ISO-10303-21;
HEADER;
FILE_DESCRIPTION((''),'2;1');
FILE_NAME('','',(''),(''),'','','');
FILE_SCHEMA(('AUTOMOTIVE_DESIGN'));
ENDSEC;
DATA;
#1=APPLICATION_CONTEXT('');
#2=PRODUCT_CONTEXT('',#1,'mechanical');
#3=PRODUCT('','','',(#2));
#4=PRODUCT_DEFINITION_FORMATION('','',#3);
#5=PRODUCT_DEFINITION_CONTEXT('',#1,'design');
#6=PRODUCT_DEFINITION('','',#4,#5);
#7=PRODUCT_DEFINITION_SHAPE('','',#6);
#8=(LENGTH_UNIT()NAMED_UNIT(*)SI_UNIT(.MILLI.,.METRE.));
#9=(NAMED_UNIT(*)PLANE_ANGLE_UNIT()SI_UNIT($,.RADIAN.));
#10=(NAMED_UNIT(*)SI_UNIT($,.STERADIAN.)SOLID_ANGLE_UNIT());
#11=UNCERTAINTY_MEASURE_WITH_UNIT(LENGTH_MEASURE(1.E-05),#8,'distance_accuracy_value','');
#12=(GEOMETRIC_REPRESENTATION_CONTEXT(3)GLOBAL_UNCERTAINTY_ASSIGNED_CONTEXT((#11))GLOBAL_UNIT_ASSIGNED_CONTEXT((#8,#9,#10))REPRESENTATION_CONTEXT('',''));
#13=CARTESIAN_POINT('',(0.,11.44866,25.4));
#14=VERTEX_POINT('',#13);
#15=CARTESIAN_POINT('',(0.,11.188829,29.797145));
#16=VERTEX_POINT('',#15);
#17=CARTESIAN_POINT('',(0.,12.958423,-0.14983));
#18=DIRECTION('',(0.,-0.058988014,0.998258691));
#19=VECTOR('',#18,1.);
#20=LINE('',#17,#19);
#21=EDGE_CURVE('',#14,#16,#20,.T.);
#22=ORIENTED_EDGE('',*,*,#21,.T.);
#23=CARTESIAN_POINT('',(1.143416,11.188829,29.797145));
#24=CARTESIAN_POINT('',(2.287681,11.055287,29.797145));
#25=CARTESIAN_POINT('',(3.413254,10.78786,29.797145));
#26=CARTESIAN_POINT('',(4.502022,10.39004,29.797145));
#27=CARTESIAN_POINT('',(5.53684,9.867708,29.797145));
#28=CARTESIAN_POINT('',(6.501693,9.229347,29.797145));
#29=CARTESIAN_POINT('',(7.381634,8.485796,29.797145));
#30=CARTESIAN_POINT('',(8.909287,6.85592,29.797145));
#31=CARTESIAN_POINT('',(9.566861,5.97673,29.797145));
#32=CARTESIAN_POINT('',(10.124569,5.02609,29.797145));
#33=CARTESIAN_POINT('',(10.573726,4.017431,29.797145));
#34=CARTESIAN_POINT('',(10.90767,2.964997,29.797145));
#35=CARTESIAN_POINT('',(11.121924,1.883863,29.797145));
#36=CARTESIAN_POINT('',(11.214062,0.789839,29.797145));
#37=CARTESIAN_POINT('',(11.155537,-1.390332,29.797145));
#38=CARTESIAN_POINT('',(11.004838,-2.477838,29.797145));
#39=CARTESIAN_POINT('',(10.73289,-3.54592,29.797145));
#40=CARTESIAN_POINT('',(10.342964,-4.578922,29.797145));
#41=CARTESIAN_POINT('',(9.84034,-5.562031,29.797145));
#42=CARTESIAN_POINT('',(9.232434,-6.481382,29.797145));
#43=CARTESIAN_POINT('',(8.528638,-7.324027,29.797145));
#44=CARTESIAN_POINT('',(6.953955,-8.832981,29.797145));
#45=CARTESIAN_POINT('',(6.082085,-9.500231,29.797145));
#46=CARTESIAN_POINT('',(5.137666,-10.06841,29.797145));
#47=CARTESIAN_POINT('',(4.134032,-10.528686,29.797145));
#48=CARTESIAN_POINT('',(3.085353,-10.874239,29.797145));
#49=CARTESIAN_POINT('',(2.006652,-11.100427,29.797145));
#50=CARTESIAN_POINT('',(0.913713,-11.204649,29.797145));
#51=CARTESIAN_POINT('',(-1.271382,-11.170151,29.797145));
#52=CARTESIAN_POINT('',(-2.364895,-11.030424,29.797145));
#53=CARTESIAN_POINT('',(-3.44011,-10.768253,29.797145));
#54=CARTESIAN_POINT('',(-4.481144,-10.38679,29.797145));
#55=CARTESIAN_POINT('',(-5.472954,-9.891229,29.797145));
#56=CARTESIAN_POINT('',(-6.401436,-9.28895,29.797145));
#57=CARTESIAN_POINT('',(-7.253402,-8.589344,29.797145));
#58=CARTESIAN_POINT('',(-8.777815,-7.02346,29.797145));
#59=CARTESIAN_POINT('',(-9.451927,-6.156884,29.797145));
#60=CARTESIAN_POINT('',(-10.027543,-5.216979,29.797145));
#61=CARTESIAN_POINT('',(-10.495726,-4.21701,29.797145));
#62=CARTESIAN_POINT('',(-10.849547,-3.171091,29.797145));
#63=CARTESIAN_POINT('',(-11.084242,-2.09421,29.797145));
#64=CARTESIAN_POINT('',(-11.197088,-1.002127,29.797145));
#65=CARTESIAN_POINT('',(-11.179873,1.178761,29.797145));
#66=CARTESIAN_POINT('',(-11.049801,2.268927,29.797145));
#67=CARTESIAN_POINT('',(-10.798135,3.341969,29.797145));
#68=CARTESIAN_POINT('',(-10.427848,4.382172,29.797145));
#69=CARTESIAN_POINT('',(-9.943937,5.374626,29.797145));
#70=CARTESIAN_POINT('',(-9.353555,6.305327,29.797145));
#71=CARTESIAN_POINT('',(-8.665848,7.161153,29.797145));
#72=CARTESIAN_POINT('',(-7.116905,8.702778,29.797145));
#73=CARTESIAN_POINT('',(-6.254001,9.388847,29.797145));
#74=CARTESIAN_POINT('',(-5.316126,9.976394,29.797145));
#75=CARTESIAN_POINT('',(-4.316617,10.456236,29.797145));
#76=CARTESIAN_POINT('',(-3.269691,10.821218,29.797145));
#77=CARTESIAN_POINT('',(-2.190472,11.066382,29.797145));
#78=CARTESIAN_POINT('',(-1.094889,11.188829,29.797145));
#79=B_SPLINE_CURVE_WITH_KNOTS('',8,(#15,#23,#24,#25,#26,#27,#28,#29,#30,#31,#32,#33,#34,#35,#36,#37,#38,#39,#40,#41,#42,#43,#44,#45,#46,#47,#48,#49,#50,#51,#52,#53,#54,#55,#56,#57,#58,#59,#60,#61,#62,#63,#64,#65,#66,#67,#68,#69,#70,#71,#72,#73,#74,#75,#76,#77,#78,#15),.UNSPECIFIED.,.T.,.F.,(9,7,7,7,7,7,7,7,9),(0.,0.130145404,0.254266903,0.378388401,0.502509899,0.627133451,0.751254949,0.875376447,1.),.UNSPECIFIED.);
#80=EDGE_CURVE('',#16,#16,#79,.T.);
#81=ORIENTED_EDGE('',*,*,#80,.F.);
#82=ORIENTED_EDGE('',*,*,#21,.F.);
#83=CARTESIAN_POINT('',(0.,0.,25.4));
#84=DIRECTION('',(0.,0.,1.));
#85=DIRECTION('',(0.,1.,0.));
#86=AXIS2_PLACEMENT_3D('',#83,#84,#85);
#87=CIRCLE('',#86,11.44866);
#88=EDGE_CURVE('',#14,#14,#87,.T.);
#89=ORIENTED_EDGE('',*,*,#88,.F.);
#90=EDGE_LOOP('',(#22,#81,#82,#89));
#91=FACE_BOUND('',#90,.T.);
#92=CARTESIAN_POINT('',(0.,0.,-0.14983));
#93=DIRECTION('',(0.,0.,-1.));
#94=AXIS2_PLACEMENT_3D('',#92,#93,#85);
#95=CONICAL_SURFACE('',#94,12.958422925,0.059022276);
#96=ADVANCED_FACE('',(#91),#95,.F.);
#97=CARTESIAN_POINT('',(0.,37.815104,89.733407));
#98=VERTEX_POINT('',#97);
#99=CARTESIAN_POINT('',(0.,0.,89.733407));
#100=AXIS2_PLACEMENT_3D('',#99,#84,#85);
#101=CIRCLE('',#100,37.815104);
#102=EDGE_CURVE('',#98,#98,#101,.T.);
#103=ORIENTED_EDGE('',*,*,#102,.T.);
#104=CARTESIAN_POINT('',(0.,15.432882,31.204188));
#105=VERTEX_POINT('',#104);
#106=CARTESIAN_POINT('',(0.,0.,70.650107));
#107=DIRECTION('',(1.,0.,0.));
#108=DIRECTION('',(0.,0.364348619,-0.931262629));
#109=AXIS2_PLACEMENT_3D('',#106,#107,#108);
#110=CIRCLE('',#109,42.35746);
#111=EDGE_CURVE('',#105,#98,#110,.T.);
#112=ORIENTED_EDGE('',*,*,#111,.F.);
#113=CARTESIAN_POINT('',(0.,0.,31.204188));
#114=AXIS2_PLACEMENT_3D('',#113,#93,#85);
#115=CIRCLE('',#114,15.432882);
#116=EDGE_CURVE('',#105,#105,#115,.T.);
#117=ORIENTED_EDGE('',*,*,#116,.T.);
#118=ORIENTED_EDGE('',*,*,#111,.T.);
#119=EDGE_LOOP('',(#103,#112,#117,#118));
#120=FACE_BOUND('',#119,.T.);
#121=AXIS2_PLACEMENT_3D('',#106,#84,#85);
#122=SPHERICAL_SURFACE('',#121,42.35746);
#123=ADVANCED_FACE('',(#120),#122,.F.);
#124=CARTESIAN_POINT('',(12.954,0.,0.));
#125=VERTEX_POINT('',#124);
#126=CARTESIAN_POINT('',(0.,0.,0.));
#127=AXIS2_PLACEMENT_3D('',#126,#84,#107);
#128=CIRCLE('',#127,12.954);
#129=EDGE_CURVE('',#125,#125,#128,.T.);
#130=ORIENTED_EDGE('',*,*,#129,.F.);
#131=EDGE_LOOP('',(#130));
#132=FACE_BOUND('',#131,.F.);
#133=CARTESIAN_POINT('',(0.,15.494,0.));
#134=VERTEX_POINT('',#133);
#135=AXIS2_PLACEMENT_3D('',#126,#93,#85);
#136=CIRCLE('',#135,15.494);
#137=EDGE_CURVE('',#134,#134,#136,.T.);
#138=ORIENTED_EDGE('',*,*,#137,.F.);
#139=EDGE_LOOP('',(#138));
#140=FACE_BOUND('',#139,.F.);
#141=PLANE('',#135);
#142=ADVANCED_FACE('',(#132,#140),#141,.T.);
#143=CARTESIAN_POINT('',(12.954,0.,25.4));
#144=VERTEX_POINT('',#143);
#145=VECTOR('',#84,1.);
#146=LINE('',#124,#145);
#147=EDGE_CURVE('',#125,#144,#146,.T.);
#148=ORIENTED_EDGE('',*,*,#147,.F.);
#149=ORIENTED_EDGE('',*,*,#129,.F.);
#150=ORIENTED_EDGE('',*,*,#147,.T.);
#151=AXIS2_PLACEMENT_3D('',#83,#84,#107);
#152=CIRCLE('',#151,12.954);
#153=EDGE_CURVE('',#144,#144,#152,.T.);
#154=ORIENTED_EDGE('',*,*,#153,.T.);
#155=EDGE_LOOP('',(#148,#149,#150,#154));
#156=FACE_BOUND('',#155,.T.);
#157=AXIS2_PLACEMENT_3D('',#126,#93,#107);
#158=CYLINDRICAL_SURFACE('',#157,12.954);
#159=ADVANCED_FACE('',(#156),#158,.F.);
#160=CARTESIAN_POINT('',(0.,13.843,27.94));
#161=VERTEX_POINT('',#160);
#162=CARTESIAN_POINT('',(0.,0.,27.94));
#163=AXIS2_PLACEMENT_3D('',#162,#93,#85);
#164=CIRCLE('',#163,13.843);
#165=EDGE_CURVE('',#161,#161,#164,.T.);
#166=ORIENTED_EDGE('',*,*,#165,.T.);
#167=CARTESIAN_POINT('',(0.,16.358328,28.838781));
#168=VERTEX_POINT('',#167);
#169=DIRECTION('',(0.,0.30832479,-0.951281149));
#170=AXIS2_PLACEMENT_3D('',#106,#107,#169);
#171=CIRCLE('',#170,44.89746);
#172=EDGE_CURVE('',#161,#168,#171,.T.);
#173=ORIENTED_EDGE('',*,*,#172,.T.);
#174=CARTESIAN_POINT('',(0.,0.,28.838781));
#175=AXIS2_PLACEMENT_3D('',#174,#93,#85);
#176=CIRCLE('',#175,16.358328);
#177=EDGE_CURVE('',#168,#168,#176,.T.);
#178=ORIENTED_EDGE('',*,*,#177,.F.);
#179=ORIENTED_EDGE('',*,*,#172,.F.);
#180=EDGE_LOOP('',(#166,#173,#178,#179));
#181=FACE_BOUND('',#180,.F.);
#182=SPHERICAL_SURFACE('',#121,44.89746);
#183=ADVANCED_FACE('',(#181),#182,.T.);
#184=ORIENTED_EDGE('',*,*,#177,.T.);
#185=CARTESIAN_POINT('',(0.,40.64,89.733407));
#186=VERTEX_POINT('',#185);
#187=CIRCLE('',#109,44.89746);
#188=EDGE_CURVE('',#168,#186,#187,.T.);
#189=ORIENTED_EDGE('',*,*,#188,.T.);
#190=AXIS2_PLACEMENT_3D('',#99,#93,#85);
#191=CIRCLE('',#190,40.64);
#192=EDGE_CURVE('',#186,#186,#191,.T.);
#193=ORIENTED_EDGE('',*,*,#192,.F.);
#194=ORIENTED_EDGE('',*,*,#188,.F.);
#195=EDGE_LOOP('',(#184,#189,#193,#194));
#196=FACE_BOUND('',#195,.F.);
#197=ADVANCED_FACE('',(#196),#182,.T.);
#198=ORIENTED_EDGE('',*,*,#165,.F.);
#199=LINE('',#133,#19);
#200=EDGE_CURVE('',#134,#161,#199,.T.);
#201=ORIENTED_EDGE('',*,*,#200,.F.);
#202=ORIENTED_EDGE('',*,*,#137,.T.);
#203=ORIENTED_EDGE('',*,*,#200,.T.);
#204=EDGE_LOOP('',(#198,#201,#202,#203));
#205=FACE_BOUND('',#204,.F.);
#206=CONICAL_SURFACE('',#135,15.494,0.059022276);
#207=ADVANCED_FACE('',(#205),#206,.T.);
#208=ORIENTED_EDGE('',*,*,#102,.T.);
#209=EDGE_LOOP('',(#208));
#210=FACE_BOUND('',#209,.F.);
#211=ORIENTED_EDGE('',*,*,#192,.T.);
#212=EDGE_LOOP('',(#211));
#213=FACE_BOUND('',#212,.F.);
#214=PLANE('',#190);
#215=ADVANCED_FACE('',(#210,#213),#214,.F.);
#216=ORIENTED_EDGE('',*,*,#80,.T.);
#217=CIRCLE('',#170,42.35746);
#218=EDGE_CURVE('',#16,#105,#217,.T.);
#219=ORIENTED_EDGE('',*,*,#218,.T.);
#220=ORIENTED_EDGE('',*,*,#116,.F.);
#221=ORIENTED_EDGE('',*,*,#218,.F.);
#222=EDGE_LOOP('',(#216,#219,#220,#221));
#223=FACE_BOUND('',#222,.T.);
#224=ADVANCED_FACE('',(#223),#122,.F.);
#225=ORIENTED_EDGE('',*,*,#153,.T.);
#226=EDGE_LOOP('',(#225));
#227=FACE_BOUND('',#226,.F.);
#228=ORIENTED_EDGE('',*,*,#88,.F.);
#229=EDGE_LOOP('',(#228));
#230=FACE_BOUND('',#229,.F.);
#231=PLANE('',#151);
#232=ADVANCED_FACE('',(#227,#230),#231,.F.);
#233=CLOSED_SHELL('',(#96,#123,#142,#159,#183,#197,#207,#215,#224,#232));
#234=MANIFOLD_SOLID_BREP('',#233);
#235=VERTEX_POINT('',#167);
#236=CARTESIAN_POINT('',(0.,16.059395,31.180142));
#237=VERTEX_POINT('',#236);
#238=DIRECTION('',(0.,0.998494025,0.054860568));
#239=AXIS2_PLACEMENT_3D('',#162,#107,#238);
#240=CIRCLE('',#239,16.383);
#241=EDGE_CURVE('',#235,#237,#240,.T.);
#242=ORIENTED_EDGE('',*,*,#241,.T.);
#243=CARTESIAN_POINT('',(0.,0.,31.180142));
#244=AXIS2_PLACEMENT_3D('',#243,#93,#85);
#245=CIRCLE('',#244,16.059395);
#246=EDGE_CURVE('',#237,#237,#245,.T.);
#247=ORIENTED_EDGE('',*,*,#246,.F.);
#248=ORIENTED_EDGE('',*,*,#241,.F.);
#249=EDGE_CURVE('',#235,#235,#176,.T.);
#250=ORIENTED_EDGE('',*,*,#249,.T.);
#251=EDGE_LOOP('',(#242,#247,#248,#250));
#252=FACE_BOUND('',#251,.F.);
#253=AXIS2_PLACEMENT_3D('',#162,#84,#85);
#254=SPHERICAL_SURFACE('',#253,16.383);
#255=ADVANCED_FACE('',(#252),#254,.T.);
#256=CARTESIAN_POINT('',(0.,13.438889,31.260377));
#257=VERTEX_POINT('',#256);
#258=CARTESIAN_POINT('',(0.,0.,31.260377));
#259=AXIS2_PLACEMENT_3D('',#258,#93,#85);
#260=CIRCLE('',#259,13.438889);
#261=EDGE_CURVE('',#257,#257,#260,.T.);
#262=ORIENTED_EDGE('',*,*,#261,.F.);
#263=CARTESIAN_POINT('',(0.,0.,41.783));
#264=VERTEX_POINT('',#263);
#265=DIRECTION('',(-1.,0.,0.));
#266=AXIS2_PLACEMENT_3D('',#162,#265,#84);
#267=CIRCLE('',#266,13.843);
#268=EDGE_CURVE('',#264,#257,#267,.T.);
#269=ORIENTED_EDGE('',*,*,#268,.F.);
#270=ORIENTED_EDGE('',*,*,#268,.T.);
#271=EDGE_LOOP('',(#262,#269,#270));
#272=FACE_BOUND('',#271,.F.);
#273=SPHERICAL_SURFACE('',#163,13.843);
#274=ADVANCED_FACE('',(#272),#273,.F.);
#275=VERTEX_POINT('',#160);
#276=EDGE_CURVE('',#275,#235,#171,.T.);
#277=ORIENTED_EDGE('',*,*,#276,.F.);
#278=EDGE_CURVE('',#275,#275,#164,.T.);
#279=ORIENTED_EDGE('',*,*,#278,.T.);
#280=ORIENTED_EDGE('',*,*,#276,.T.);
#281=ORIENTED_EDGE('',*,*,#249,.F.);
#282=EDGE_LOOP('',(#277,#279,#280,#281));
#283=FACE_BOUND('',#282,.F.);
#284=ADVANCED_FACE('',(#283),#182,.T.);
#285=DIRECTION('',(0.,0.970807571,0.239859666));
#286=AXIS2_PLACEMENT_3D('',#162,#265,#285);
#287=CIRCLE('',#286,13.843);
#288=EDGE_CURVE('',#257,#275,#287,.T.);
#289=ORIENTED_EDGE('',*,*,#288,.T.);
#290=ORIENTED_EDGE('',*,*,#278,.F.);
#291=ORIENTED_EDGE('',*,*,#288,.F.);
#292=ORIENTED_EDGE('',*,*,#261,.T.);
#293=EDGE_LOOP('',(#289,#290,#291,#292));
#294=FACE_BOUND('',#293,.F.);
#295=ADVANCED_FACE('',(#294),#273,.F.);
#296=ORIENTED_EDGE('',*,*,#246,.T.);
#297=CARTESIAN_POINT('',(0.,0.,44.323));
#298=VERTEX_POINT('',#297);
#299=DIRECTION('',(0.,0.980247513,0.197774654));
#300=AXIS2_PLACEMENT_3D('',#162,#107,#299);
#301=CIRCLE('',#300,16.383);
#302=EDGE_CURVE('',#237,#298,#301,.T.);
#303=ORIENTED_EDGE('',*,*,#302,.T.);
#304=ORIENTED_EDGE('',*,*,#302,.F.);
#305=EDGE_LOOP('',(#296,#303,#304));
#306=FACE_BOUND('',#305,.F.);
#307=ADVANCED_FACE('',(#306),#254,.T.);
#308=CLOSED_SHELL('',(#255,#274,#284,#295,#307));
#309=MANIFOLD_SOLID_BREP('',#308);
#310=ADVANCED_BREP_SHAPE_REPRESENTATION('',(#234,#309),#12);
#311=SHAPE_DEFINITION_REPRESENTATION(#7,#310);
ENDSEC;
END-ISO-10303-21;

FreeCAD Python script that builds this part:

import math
import FreeCAD as App
import Part
import Sketcher

V = App.Vector
Q = App.Units.Quantity


def faces_at(feature, points):
    """Names of the faces that lie closest to the given points."""
    faces = feature.Shape.Faces
    near = lambda p: min(range(len(faces)), key=lambda i: faces[i].distToShape(Part.Vertex(*p))[0])
    return sorted({f"Face{near(p) + 1}" for p in points})

doc = App.newDocument("Part")
params = doc.addObject("Spreadsheet::Sheet", "Params")
for row, (alias, value) in enumerate([
    ("sketch1_width", "1.6 in"),
    ("sketch1_width2", "0.61 in"),
    ("revolution_angle", "360 deg"),
    ("thickness_wall", "0.1 in"),
    ("sketch2_diameter", "1.02 in"),
    ("pocket1_length", "1 in"),
    ("sketch3_height", "0.1 in"),
    ("sketch3_radius", "0.545 in"),
    ("revolution2_angle", "360 deg"),
], start=1):
    params.set(f"A{row}", alias)
    params.set(f"B{row}", "=" + value)
    params.setAlias(f"B{row}", alias)

body = doc.addObject("PartDesign::Body", "Body")

# Sketch on YZ plane
sketch1 = body.newObject("Sketcher::SketchObject", "Sketch")
sketch1.AttachmentSupport = (doc.getObject("YZ_Plane"), [""])
sketch1.MapMode = "FlatFace"
sketch1.addGeometry([
    Part.LineSegment(V(0, 0, 0), V(15.494, 0, 0)),  # 0
    Part.LineSegment(V(15.494, 0, 0), V(13.843, 27.94, 0)),  # 1
    Part.ArcOfCircle(Part.Circle(V(0, 70.650107, 0), V(0, 0, 1), 44.89746), math.radians(-72.041696), math.radians(-68.632499)),  # 2
    Part.ArcOfCircle(Part.Circle(V(0, 70.650107, 0), V(0, 0, 1), 44.89746), math.radians(-68.632499), math.radians(25.153313)),  # 3
    Part.LineSegment(V(40.64, 89.733407, 0), V(0, 89.733407, 0)),  # 4
    Part.LineSegment(V(0, 89.733407, 0), V(0, 0, 0)),  # 5
], False)
sketch1.addConstraint([
    Sketcher.Constraint("Coincident", 0, 2, 1, 1),
    Sketcher.Constraint("Coincident", 1, 2, 2, 1),
    Sketcher.Constraint("Tangent", 2, 2, 3, 1),
    Sketcher.Constraint("Coincident", 3, 2, 4, 1),
    Sketcher.Constraint("Coincident", 4, 2, 5, 1),
    Sketcher.Constraint("Coincident", 5, 2, 0, 1),
    Sketcher.Constraint("Horizontal", 0),
    Sketcher.Constraint("Horizontal", 4),
    Sketcher.Constraint("Vertical", 5),
    Sketcher.Constraint("Coincident", 5, 2, -1, 1),
    Sketcher.Constraint("Equal", 2, 3),
    Sketcher.Constraint("PointOnObject", 2, 3, -2),
    Sketcher.Constraint("DistanceX", 4, 2, 4, 1, Q("1.6 in")),
    Sketcher.Constraint("DistanceX", 0, 1, 0, 2, Q("0.61 in")),
    Sketcher.Constraint("DistanceY", -1, 1, 1, 2, Q("1.1 in")),
    Sketcher.Constraint("DistanceX", -1, 1, 1, 2, Q("0.545 in")),
    Sketcher.Constraint("Radius", 2, 44.89746),
    Sketcher.Constraint("DistanceY", -1, 1, 2, 2, 28.838781),
])
sketch1.setExpression("Constraints[12]", "Params.sketch1_width")
sketch1.setExpression("Constraints[13]", "Params.sketch1_width2")
revolution = body.newObject("PartDesign::Revolution", "Revolution")
revolution.Profile = sketch1
revolution.ReferenceAxis = (sketch1, ["V_Axis"])
revolution.setExpression("Angle", "Params.revolution_angle")
doc.recompute()

thickness = body.newObject("PartDesign::Thickness", "Thickness")
thickness.Base = (revolution, faces_at(revolution, [(0, 0, 89.733)]))
thickness.setExpression("Value", "Params.thickness_wall")
thickness.Reversed = True
thickness.Join = "Intersection"

# Sketch on XY plane
sketch2 = body.newObject("Sketcher::SketchObject", "Sketch001")
sketch2.AttachmentSupport = (doc.getObject("XY_Plane"), [""])
sketch2.MapMode = "FlatFace"
sketch2.addGeometry(Part.Circle(V(0, 0, 0), V(0, 0, 1), 12.954), False)
sketch2.addConstraint([
    Sketcher.Constraint("Coincident", 0, 3, -1, 1),
    Sketcher.Constraint("Diameter", 0, Q("1.02 in")),
])
sketch2.setExpression("Constraints[1]", "Params.sketch2_diameter")
pocket1 = body.newObject("PartDesign::Pocket", "Pocket")
pocket1.Profile = sketch2
pocket1.setExpression("Length", "Params.pocket1_length")
pocket1.Reversed = True
body2 = doc.addObject("PartDesign::Body", "Body001")

# Sketch on YZ plane
sketch3 = body2.newObject("Sketcher::SketchObject", "Sketch002")
sketch3.AttachmentSupport = (doc.getObject("YZ_Plane001"), [""])
sketch3.MapMode = "FlatFace"
sketch3.addGeometry([
    Part.LineSegment(V(0, 44.323, 0), V(0, 41.783, 0)),  # 0
    Part.ArcOfCircle(Part.Circle(V(0, 27.94, 0), V(0, 0, 1), 13.843), math.radians(13.878258), math.radians(90)),  # 1
    Part.ArcOfCircle(Part.Circle(V(0, 27.94, 0), V(0, 0, 1), 13.843), math.radians(0), math.radians(13.878258)),  # 2
    Part.ArcOfCircle(Part.Circle(V(0, 70.650107, 0), V(0, 0, 1), 44.89746), math.radians(-72.041696), math.radians(-68.632499)),  # 3
    Part.ArcOfCircle(Part.Circle(V(0, 27.94, 0), V(0, 0, 1), 16.383), math.radians(3.144858), math.radians(11.406857)),  # 4
    Part.ArcOfCircle(Part.Circle(V(0, 27.94, 0), V(0, 0, 1), 16.383), math.radians(11.406857), math.radians(90)),  # 5
], False)
sketch3.addConstraint([
    Sketcher.Constraint("Coincident", 0, 2, 1, 2),
    Sketcher.Constraint("Tangent", 1, 1, 2, 2),
    Sketcher.Constraint("Coincident", 2, 1, 3, 1),
    Sketcher.Constraint("Coincident", 3, 2, 4, 1),
    Sketcher.Constraint("Tangent", 4, 2, 5, 1),
    Sketcher.Constraint("Coincident", 5, 2, 0, 1),
    Sketcher.Constraint("Vertical", 0),
    Sketcher.Constraint("Coincident", 4, 3, 1, 3),
    Sketcher.Constraint("Equal", 1, 2),
    Sketcher.Constraint("Equal", 4, 5),
    Sketcher.Constraint("PointOnObject", 1, 3, -2),
    Sketcher.Constraint("PointOnObject", 3, 3, -2),
    Sketcher.Constraint("PointOnObject", 0, 2, -2),
    Sketcher.Constraint("Horizontal", 5, 3, 2, 1),
    Sketcher.Constraint("DistanceY", 0, 2, 0, 1, Q("0.1 in")),
    Sketcher.Constraint("Radius", 1, Q("0.545 in")),
    Sketcher.Constraint("DistanceY", -1, 1, 1, 3, Q("1.1 in")),
    Sketcher.Constraint("Radius", 3, 44.89746),
    Sketcher.Constraint("DistanceX", -1, 1, 1, 1, 13.438889),
    Sketcher.Constraint("DistanceY", 3, 2, 4, 2, 2.341361),
])
sketch3.setExpression("Constraints[14]", "Params.sketch3_height")
sketch3.setExpression("Constraints[15]", "Params.sketch3_radius")
revolution2 = body2.newObject("PartDesign::Revolution", "Revolution001")
revolution2.Profile = sketch3
revolution2.ReferenceAxis = (sketch3, ["V_Axis"])
revolution2.setExpression("Angle", "Params.revolution2_angle")

doc.recompute()
